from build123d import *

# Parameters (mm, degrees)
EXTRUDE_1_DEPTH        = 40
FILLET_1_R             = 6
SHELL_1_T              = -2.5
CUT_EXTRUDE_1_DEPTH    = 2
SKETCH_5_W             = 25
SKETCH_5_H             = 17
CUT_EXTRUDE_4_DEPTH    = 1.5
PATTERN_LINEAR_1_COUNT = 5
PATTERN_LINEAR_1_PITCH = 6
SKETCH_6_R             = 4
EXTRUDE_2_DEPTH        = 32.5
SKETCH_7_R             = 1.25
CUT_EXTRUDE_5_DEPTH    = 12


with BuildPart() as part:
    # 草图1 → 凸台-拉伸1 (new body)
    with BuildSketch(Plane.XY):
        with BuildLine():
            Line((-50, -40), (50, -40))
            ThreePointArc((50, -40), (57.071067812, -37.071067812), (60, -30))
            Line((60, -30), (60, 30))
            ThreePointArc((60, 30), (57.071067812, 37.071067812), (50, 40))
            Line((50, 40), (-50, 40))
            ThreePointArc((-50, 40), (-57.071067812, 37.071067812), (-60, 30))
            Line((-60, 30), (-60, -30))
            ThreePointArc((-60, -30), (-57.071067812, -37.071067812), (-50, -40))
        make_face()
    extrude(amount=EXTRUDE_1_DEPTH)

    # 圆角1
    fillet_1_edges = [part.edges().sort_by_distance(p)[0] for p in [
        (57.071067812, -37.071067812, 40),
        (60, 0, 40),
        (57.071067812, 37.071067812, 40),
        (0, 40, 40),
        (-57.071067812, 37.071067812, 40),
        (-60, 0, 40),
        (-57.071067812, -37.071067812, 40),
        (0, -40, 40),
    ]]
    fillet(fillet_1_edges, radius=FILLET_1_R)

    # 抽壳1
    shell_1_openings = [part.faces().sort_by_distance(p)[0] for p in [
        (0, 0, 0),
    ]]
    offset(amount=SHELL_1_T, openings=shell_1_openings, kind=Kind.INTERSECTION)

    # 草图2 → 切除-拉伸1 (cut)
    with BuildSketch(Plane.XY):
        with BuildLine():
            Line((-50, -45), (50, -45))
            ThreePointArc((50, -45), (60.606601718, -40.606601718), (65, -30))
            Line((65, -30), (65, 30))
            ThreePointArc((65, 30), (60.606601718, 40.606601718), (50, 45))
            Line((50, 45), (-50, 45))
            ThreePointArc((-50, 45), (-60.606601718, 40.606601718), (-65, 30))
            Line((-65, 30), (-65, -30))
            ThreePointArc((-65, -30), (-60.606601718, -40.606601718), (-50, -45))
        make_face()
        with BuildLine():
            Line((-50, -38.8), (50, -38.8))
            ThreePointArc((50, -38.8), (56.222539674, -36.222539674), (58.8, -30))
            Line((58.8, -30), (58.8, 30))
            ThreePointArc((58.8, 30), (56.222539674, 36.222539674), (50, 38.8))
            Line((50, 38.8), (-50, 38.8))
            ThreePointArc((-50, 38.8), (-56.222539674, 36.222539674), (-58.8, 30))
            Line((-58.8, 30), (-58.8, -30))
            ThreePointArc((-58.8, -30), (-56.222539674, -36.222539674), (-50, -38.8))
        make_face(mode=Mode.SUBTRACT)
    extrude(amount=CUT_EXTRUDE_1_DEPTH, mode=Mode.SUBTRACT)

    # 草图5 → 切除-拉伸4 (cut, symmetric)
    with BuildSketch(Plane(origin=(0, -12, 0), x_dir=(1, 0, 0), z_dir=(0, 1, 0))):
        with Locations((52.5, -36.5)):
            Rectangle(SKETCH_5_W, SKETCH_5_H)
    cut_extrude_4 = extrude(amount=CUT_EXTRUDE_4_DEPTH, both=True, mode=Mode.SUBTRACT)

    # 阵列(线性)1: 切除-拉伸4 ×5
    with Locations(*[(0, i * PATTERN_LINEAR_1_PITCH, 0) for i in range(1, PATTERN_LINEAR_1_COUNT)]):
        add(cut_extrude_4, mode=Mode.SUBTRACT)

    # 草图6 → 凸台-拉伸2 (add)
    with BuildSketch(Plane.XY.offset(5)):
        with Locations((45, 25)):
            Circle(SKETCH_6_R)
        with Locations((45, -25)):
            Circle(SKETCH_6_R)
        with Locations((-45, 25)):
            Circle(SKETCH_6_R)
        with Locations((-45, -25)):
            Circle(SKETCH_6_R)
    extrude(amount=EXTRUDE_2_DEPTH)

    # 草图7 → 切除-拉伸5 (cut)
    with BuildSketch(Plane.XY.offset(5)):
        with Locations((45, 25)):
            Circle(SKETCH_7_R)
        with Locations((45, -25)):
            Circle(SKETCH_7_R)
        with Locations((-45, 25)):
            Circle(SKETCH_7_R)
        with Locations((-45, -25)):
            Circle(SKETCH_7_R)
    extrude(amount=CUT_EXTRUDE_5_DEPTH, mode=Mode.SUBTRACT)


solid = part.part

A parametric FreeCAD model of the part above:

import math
import FreeCAD as App
import Part
import Sketcher
from FreeCAD import Vector
Q = App.Units.Quantity


def edges_at(feature, points):
    """Names of the edges that pass closest to the given points."""
    edges = feature.Shape.Edges
    near = lambda p: min(range(len(edges)), key=lambda i: edges[i].distToShape(Part.Vertex(*p))[0])
    return sorted({f"Edge{near(p) + 1}" for p in points})


def faces_at(feature, points):
    """Names of the faces that lie closest to the given points."""
    faces = feature.Shape.Faces
    near = lambda p: min(range(len(faces)), key=lambda i: faces[i].distToShape(Part.Vertex(*p))[0])
    return sorted({f"Face{near(p) + 1}" for p in points})

doc = App.newDocument("Part")
body = doc.addObject("PartDesign::Body", "Body")

# Sketch on XY plane
sketch1 = body.newObject("Sketcher::SketchObject", "Sketch")
sketch1.AttachmentSupport = (doc.getObject("XY_Plane"), [""])
sketch1.MapMode = "FlatFace"
sketch1.addGeometry([
    Part.LineSegment(Vector(-50, -40, 0), Vector(50, -40, 0)),  # 0
    Part.ArcOfCircle(Part.Circle(Vector(50, -30, 0), Vector(0, 0, 1), 10), math.radians(-90), math.radians(0)),  # 1
    Part.LineSegment(Vector(60, -30, 0), Vector(60, 30, 0)),  # 2
    Part.ArcOfCircle(Part.Circle(Vector(50, 30, 0), Vector(0, 0, 1), 10), math.radians(0), math.radians(90)),  # 3
    Part.LineSegment(Vector(50, 40, 0), Vector(-50, 40, 0)),  # 4
    Part.ArcOfCircle(Part.Circle(Vector(-50, 30, 0), Vector(0, 0, 1), 10), math.radians(90), math.radians(180)),  # 5
    Part.LineSegment(Vector(-60, 30, 0), Vector(-60, -30, 0)),  # 6
    Part.ArcOfCircle(Part.Circle(Vector(-50, -30, 0), Vector(0, 0, 1), 10), math.radians(180), math.radians(270)),  # 7
], False)
sketch1.addConstraint([
    Sketcher.Constraint("Tangent", 0, 2, 1, 1),
    Sketcher.Constraint("Tangent", 1, 2, 2, 1),
    Sketcher.Constraint("Tangent", 2, 2, 3, 1),
    Sketcher.Constraint("Tangent", 3, 2, 4, 1),
    Sketcher.Constraint("Tangent", 4, 2, 5, 1),
    Sketcher.Constraint("Tangent", 5, 2, 6, 1),
    Sketcher.Constraint("Tangent", 6, 2, 7, 1),
    Sketcher.Constraint("Tangent", 7, 2, 0, 1),
    Sketcher.Constraint("Horizontal", 0),
    Sketcher.Constraint("Vertical", 2),
    Sketcher.Constraint("Horizontal", 4),
    Sketcher.Constraint("Vertical", 6),
    Sketcher.Constraint("Equal", 1, 3),
    Sketcher.Constraint("Equal", 3, 5),
    Sketcher.Constraint("Equal", 5, 7),
    Sketcher.Constraint("Symmetric", 1, 3, 5, 3, -1, 1),
    Sketcher.Constraint("Radius", 1, Q("10 mm")),
    Sketcher.Constraint("DistanceX", 0, 1, 0, 2, Q("100 mm")),
    Sketcher.Constraint("DistanceY", 2, 1, 2, 2, Q("60 mm")),
])
pad1 = body.newObject("PartDesign::Pad", "Pad")
pad1.Profile = sketch1
pad1.Length = 40
doc.recompute()

fillet = body.newObject("PartDesign::Fillet", "Fillet")
fillet.Base = (pad1, edges_at(pad1, [
    (57.071, -37.071, 40),
    (60, 0, 40),
    (57.071, 37.071, 40),
    (0, 40, 40),
    (-57.071, 37.071, 40),
    (-60, 0, 40),
    (-57.071, -37.071, 40),
    (0, -40, 40),
]))
fillet.Radius = 6
doc.recompute()

thickness = body.newObject("PartDesign::Thickness", "Thickness")
thickness.Base = (fillet, faces_at(fillet, [(0, 0, 0)]))
thickness.Value = 2.5
thickness.Reversed = True
thickness.Join = "Intersection"

# Sketch on XY plane
sketch2 = body.newObject("Sketcher::SketchObject", "Sketch001")
sketch2.AttachmentSupport = (doc.getObject("XY_Plane"), [""])
sketch2.MapMode = "FlatFace"
sketch2.addGeometry([
    Part.LineSegment(Vector(-50, -45, 0), Vector(50, -45, 0)),  # 0
    Part.ArcOfCircle(Part.Circle(Vector(50, -30, 0), Vector(0, 0, 1), 15), math.radians(-90), math.radians(0)),  # 1
    Part.LineSegment(Vector(65, -30, 0), Vector(65, 30, 0)),  # 2
    Part.ArcOfCircle(Part.Circle(Vector(50, 30, 0), Vector(0, 0, 1), 15), math.radians(0), math.radians(90)),  # 3
    Part.LineSegment(Vector(50, 45, 0), Vector(-50, 45, 0)),  # 4
    Part.ArcOfCircle(Part.Circle(Vector(-50, 30, 0), Vector(0, 0, 1), 15), math.radians(90), math.radians(180)),  # 5
    Part.LineSegment(Vector(-65, 30, 0), Vector(-65, -30, 0)),  # 6
    Part.ArcOfCircle(Part.Circle(Vector(-50, -30, 0), Vector(0, 0, 1), 15), math.radians(180), math.radians(270)),  # 7
    Part.LineSegment(Vector(50, -39, 0), Vector(-50, -39, 0)),  # 8
    Part.ArcOfCircle(Part.Circle(Vector(-50, -30, 0), Vector(0, 0, 1), 9), math.radians(-180), math.radians(-90)),  # 9
    Part.LineSegment(Vector(-59, -30, 0), Vector(-59, 30, 0)),  # 10
    Part.ArcOfCircle(Part.Circle(Vector(-50, 30, 0), Vector(0, 0, 1), 9), math.radians(90), math.radians(180)),  # 11
    Part.LineSegment(Vector(-50, 39, 0), Vector(50, 39, 0)),  # 12
    Part.ArcOfCircle(Part.Circle(Vector(50, 30, 0), Vector(0, 0, 1), 9), math.radians(0), math.radians(90)),  # 13
    Part.LineSegment(Vector(59, 30, 0), Vector(59, -30, 0)),  # 14
    Part.ArcOfCircle(Part.Circle(Vector(50, -30, 0), Vector(0, 0, 1), 9), math.radians(-90), math.radians(0)),  # 15
], False)
sketch2.addConstraint([
    Sketcher.Constraint("Tangent", 0, 2, 1, 1),
    Sketcher.Constraint("Tangent", 1, 2, 2, 1),
    Sketcher.Constraint("Tangent", 2, 2, 3, 1),
    Sketcher.Constraint("Tangent", 3, 2, 4, 1),
    Sketcher.Constraint("Tangent", 4, 2, 5, 1),
    Sketcher.Constraint("Tangent", 5, 2, 6, 1),
    Sketcher.Constraint("Tangent", 6, 2, 7, 1),
    Sketcher.Constraint("Tangent", 7, 2, 0, 1),
    Sketcher.Constraint("Tangent", 8, 2, 9, 2),
    Sketcher.Constraint("Tangent", 9, 1, 10, 1),
    Sketcher.Constraint("Tangent", 10, 2, 11, 2),
    Sketcher.Constraint("Tangent", 11, 1, 12, 1),
    Sketcher.Constraint("Tangent", 12, 2, 13, 2),
    Sketcher.Constraint("Tangent", 13, 1, 14, 1),
    Sketcher.Constraint("Tangent", 14, 2, 15, 2),
    Sketcher.Constraint("Tangent", 15, 1, 8, 1),
    Sketcher.Constraint("Horizontal", 0),
    Sketcher.Constraint("Vertical", 2),
    Sketcher.Constraint("Horizontal", 4),
    Sketcher.Constraint("Vertical", 6),
    Sketcher.Constraint("Horizontal", 8),
    Sketcher.Constraint("Vertical", 10),
    Sketcher.Constraint("Horizontal", 12),
    Sketcher.Constraint("Vertical", 14),
    Sketcher.Constraint("Coincident", 9, 3, 7, 3),
    Sketcher.Constraint("Coincident", 11, 3, 5, 3),
    Sketcher.Constraint("Coincident", 13, 3, 3, 3),
    Sketcher.Constraint("Equal", 1, 3),
    Sketcher.Constraint("Equal", 3, 5),
    Sketcher.Constraint("Equal", 5, 7),
    Sketcher.Constraint("Equal", 13, 15),
    Sketcher.Constraint("Symmetric", 1, 3, 5, 3, -1, 1),
    Sketcher.Constraint("Radius", 1, Q("15 mm")),
    Sketcher.Constraint("Radius", 9, Q("8.8 mm")),
    Sketcher.Constraint("DistanceX", 0, 1, 0, 2, Q("100 mm")),
    Sketcher.Constraint("DistanceY", 2, 1, 2, 2, Q("60 mm")),
])
pocket1 = body.newObject("PartDesign::Pocket", "Pocket")
pocket1.Profile = sketch2
pocket1.Length = 2
pocket1.Reversed = True

# Sketch on XZ plane
sketch3 = body.newObject("Sketcher::SketchObject", "Sketch002")
sketch3.AttachmentSupport = (doc.getObject("XZ_Plane"), [""])
sketch3.MapMode = "FlatFace"
sketch3.AttachmentOffset = App.Placement(Vector(0, 0, 12), App.Rotation())
sketch3.addGeometry([
    Part.LineSegment(Vector(40, 28, 0), Vector(40, 45, 0)),
    Part.LineSegment(Vector(40, 45, 0), Vector(65, 45, 0)),
    Part.LineSegment(Vector(65, 45, 0), Vector(65, 28, 0)),
    Part.LineSegment(Vector(65, 28, 0), Vector(40, 28, 0)),
], False)
sketch3.addConstraint([
    Sketcher.Constraint("Coincident", 0, 2, 1, 1),
    Sketcher.Constraint("Coincident", 1, 2, 2, 1),
    Sketcher.Constraint("Coincident", 2, 2, 3, 1),
    Sketcher.Constraint("Coincident", 3, 2, 0, 1),
    Sketcher.Constraint("Vertical", 0),
    Sketcher.Constraint("Horizontal", 1),
    Sketcher.Constraint("Vertical", 2),
    Sketcher.Constraint("Horizontal", 3),
    Sketcher.Constraint("DistanceX", 1, 1, 1, 2, Q("25 mm")),
    Sketcher.Constraint("DistanceY", 0, 1, 0, 2, Q("17 mm")),
    Sketcher.Constraint("DistanceX", -1, 1, 0, 2, Q("40 mm")),
    Sketcher.Constraint("DistanceY", -1, 1, 0, 2, Q("45 mm")),
])
pocket2 = body.newObject("PartDesign::Pocket", "Pocket001")
pocket2.Profile = sketch3
pocket2.Length = 3
pocket2.Midplane = True
doc.recompute()

linearpattern = body.newObject("PartDesign::LinearPattern", "LinearPattern")
linearpattern.Originals = [pocket2]
linearpattern.Direction = (doc.getObject("Y_Axis"), [""])
linearpattern.Mode = "offset"
linearpattern.Offset = 6
linearpattern.Occurrences = 5
body.Tip = linearpattern

# Sketch on XY plane
sketch4 = body.newObject("Sketcher::SketchObject", "Sketch003")
sketch4.AttachmentSupport = (doc.getObject("XY_Plane"), [""])
sketch4.MapMode = "FlatFace"
sketch4.AttachmentOffset = App.Placement(Vector(0, 0, 5), App.Rotation())
sketch4.addGeometry([
    Part.Circle(Vector(45, 25, 0), Vector(0, 0, 1), 4),
    Part.Circle(Vector(45, -25, 0), Vector(0, 0, 1), 4),
    Part.Circle(Vector(-45, 25, 0), Vector(0, 0, 1), 4),
    Part.Circle(Vector(-45, -25, 0), Vector(0, 0, 1), 4),
], False)
sketch4.addConstraint([
    Sketcher.Constraint("Equal", 0, 1),
    Sketcher.Constraint("Equal", 1, 2),
    Sketcher.Constraint("Equal", 2, 3),
    Sketcher.Constraint("Symmetric", 1, 3, 2, 3, -1, 1),
    Sketcher.Constraint("Symmetric", 0, 3, 3, 3, -1, 1),
    Sketcher.Constraint("Symmetric", 0, 3, 2, 3, -2),
    Sketcher.Constraint("Diameter", 0, Q("8 mm")),
    Sketcher.Constraint("DistanceX", -1, 1, 0, 3, Q("45 mm")),
    Sketcher.Constraint("DistanceY", -1, 1, 0, 3, Q("25 mm")),
])
pad2 = body.newObject("PartDesign::Pad", "Pad001")
pad2.Profile = sketch4
pad2.Length = 32.5

# Sketch on XY plane
sketch5 = body.newObject("Sketcher::SketchObject", "Sketch004")
sketch5.AttachmentSupport = (doc.getObject("XY_Plane"), [""])
sketch5.MapMode = "FlatFace"
sketch5.AttachmentOffset = App.Placement(Vector(0, 0, 5), App.Rotation())
sketch5.addGeometry([
    Part.Circle(Vector(45, 25, 0), Vector(0, 0, 1), 1.2),
    Part.Circle(Vector(45, -25, 0), Vector(0, 0, 1), 1.2),
    Part.Circle(Vector(-45, 25, 0), Vector(0, 0, 1), 1.2),
    Part.Circle(Vector(-45, -25, 0), Vector(0, 0, 1), 1.2),
], False)
sketch5.addConstraint([
    Sketcher.Constraint("Equal", 0, 1),
    Sketcher.Constraint("Equal", 1, 2),
    Sketcher.Constraint("Equal", 2, 3),
    Sketcher.Constraint("Symmetric", 1, 3, 2, 3, -1, 1),
    Sketcher.Constraint("Symmetric", 0, 3, 3, 3, -1, 1),
    Sketcher.Constraint("Symmetric", 0, 3, 2, 3, -2),
    Sketcher.Constraint("Diameter", 0, Q("2.5 mm")),
    Sketcher.Constraint("DistanceX", -1, 1, 0, 3, Q("45 mm")),
    Sketcher.Constraint("DistanceY", -1, 1, 0, 3, Q("25 mm")),
])
pocket3 = body.newObject("PartDesign::Pocket", "Pocket002")
pocket3.Profile = sketch5
pocket3.Length = 12
pocket3.Reversed = True

doc.recompute()
